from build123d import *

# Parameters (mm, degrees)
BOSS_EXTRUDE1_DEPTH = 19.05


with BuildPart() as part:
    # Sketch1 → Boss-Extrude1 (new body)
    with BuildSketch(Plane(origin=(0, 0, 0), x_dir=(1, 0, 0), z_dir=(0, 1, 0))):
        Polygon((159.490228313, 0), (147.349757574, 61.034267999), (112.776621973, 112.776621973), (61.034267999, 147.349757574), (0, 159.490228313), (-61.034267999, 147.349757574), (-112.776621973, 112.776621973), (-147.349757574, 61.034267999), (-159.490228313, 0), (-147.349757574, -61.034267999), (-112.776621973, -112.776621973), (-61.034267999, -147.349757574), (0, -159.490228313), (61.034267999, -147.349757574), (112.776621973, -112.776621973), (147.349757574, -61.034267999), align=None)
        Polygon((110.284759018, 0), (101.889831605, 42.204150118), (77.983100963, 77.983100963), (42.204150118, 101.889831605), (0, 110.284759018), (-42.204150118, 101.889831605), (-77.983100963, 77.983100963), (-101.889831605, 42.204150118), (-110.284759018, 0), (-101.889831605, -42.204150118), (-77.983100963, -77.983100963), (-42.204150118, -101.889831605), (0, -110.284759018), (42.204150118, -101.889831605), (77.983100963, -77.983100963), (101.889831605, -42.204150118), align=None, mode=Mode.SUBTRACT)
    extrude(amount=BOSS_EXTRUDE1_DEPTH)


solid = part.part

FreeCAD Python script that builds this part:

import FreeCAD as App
import Part
import Sketcher
Q = App.Units.Quantity


def add_polygon(sketch, points):
    """Adds a closed chain of lines whose ends are joined by coincident constraints."""
    first, n = sketch.GeometryCount, len(points)
    for a, b in zip(points, points[1:] + points[:1]):
        sketch.addGeometry(Part.LineSegment(App.Vector(*a, 0), App.Vector(*b, 0)), False)
    for i in range(n):
        sketch.addConstraint(Sketcher.Constraint("Coincident", first + i, 2, first + (i + 1) % n, 1))

doc = App.newDocument("Part")
params = doc.addObject("Spreadsheet::Sheet", "Params")
for row, (alias, value) in enumerate([
    ("sketch1_length", "2.45 in"),
    ("pad1_length", "0.75 in"),
], start=1):
    params.set(f"A{row}", alias)
    params.set(f"B{row}", "=" + value)
    params.setAlias(f"B{row}", alias)

body = doc.addObject("PartDesign::Body", "Body")

sketch1 = body.newObject("Sketcher::SketchObject", "Sketch")
sketch1.AttachmentSupport = (doc.getObject("XZ_Plane"), [""])
sketch1.MapMode = "FlatFace"
add_polygon(sketch1, [(159.490228, 0), (147.349758, -61.034268), (112.776622, -112.776622), (61.034268, -147.349758), (0, -159.490228), (-61.034268, -147.349758), (-112.776622, -112.776622), (-147.349758, -61.034268), (-159.490228, 0), (-147.349758, 61.034268), (-112.776622, 112.776622), (-61.034268, 147.349758), (0, 159.490228), (61.034268, 147.349758), (112.776622, 112.776622), (147.349758, 61.034268)])
add_polygon(sketch1, [(101.889832, -42.20415), (110.284759, 0), (101.889832, 42.20415), (77.983101, 77.983101), (42.20415, 101.889832), (0, 110.284759), (-42.20415, 101.889832), (-77.983101, 77.983101), (-101.889832, 42.20415), (-110.284759, 0), (-101.889832, -42.20415), (-77.983101, -77.983101), (-42.20415, -101.889832), (0, -110.284759), (42.20415, -101.889832), (77.983101, -77.983101)])
sketch1.addConstraint(Sketcher.Constraint("Symmetric", 0, 2, 8, 2, -1, 1))
sketch1.addConstraint(Sketcher.Constraint("Symmetric", 1, 2, 9, 2, -1, 1))
sketch1.addConstraint(Sketcher.Constraint("Symmetric", 2, 2, 10, 2, -1, 1))
sketch1.addConstraint(Sketcher.Constraint("Symmetric", 3, 2, 11, 2, -1, 1))
sketch1.addConstraint(Sketcher.Constraint("Symmetric", 4, 2, 12, 2, -1, 1))
sketch1.addConstraint(Sketcher.Constraint("Symmetric", 5, 2, 13, 2, -1, 1))
sketch1.addConstraint(Sketcher.Constraint("Symmetric", 6, 2, 14, 2, -1, 1))
sketch1.addConstraint(Sketcher.Constraint("Symmetric", 7, 2, 15, 2, -1, 1))
sketch1.addConstraint(Sketcher.Constraint("Symmetric", 16, 2, 24, 2, -1, 1))
sketch1.addConstraint(Sketcher.Constraint("Symmetric", 17, 2, 25, 2, -1, 1))
sketch1.addConstraint(Sketcher.Constraint("Symmetric", 18, 2, 26, 2, -1, 1))
sketch1.addConstraint(Sketcher.Constraint("Symmetric", 19, 2, 27, 2, -1, 1))
sketch1.addConstraint(Sketcher.Constraint("Symmetric", 20, 2, 28, 2, -1, 1))
sketch1.addConstraint(Sketcher.Constraint("Symmetric", 21, 2, 29, 2, -1, 1))
sketch1.addConstraint(Sketcher.Constraint("Symmetric", 22, 2, 30, 2, -1, 1))
sketch1.addConstraint(Sketcher.Constraint("Symmetric", 23, 2, 31, 2, -1, 1))
sketch1.addConstraint(Sketcher.Constraint("Symmetric", 2, 2, 4, 2, -2))
sketch1.addConstraint(Sketcher.Constraint("Symmetric", 1, 2, 5, 2, -2))
sketch1.addConstraint(Sketcher.Constraint("Symmetric", 0, 2, 6, 2, -2))
sketch1.addConstraint(Sketcher.Constraint("Symmetric", 19, 2, 21, 2, -2))
sketch1.addConstraint(Sketcher.Constraint("Symmetric", 18, 2, 22, 2, -2))
sketch1.addConstraint(Sketcher.Constraint("Symmetric", 17, 2, 23, 2, -2))
sketch1.addConstraint(Sketcher.Constraint("PointOnObject", 3, 2, -2))
sketch1.addConstraint(Sketcher.Constraint("PointOnObject", 7, 2, -1))
sketch1.addConstraint(Sketcher.Constraint("PointOnObject", 16, 2, -1))
sketch1.addConstraint(Sketcher.Constraint("PointOnObject", 20, 2, -2))
sketch1.addConstraint(Sketcher.Constraint("Perpendicular", 0, 4))
sketch1.addConstraint(Sketcher.Constraint("Perpendicular", 1, 5))
sketch1.addConstraint(Sketcher.Constraint("Perpendicular", 12, 16))
sketch1.addConstraint(Sketcher.Constraint("Parallel", 14, 18))
sketch1.addConstraint(Sketcher.Constraint("Parallel", 13, 19))
sketch1.addConstraint(Sketcher.Constraint("Perpendicular", 16, 20))
sketch1.addConstraint(Sketcher.Constraint("Equal", 0, 1))
sketch1.addConstraint(Sketcher.Constraint("Equal", 1, 2))
sketch1.addConstraint(Sketcher.Constraint("Equal", 2, 3))
sketch1.addConstraint(Sketcher.Constraint("Equal", 17, 18))
sketch1.addConstraint(Sketcher.Constraint("Equal", 18, 19))
sketch1.addConstraint(Sketcher.Constraint("Equal", 19, 20))
sketch1.addConstraint(Sketcher.Constraint("Distance", 0, Q("2.45 in")))
sketch1.addConstraint(Sketcher.Constraint("Angle", 0, Q("-101.25 deg")))
sketch1.addConstraint(Sketcher.Constraint("Angle", 1, Q("-123.75 deg")))
sketch1.addConstraint(Sketcher.Constraint("DistanceX", -1, 1, 18, 2, 77.983101))
sketch1.setExpression("Constraints[70]", "Params.sketch1_length")
pad1 = body.newObject("PartDesign::Pad", "Pad")
pad1.Profile = sketch1
pad1.setExpression("Length", "Params.pad1_length")
pad1.Reversed = True

doc.recompute()
